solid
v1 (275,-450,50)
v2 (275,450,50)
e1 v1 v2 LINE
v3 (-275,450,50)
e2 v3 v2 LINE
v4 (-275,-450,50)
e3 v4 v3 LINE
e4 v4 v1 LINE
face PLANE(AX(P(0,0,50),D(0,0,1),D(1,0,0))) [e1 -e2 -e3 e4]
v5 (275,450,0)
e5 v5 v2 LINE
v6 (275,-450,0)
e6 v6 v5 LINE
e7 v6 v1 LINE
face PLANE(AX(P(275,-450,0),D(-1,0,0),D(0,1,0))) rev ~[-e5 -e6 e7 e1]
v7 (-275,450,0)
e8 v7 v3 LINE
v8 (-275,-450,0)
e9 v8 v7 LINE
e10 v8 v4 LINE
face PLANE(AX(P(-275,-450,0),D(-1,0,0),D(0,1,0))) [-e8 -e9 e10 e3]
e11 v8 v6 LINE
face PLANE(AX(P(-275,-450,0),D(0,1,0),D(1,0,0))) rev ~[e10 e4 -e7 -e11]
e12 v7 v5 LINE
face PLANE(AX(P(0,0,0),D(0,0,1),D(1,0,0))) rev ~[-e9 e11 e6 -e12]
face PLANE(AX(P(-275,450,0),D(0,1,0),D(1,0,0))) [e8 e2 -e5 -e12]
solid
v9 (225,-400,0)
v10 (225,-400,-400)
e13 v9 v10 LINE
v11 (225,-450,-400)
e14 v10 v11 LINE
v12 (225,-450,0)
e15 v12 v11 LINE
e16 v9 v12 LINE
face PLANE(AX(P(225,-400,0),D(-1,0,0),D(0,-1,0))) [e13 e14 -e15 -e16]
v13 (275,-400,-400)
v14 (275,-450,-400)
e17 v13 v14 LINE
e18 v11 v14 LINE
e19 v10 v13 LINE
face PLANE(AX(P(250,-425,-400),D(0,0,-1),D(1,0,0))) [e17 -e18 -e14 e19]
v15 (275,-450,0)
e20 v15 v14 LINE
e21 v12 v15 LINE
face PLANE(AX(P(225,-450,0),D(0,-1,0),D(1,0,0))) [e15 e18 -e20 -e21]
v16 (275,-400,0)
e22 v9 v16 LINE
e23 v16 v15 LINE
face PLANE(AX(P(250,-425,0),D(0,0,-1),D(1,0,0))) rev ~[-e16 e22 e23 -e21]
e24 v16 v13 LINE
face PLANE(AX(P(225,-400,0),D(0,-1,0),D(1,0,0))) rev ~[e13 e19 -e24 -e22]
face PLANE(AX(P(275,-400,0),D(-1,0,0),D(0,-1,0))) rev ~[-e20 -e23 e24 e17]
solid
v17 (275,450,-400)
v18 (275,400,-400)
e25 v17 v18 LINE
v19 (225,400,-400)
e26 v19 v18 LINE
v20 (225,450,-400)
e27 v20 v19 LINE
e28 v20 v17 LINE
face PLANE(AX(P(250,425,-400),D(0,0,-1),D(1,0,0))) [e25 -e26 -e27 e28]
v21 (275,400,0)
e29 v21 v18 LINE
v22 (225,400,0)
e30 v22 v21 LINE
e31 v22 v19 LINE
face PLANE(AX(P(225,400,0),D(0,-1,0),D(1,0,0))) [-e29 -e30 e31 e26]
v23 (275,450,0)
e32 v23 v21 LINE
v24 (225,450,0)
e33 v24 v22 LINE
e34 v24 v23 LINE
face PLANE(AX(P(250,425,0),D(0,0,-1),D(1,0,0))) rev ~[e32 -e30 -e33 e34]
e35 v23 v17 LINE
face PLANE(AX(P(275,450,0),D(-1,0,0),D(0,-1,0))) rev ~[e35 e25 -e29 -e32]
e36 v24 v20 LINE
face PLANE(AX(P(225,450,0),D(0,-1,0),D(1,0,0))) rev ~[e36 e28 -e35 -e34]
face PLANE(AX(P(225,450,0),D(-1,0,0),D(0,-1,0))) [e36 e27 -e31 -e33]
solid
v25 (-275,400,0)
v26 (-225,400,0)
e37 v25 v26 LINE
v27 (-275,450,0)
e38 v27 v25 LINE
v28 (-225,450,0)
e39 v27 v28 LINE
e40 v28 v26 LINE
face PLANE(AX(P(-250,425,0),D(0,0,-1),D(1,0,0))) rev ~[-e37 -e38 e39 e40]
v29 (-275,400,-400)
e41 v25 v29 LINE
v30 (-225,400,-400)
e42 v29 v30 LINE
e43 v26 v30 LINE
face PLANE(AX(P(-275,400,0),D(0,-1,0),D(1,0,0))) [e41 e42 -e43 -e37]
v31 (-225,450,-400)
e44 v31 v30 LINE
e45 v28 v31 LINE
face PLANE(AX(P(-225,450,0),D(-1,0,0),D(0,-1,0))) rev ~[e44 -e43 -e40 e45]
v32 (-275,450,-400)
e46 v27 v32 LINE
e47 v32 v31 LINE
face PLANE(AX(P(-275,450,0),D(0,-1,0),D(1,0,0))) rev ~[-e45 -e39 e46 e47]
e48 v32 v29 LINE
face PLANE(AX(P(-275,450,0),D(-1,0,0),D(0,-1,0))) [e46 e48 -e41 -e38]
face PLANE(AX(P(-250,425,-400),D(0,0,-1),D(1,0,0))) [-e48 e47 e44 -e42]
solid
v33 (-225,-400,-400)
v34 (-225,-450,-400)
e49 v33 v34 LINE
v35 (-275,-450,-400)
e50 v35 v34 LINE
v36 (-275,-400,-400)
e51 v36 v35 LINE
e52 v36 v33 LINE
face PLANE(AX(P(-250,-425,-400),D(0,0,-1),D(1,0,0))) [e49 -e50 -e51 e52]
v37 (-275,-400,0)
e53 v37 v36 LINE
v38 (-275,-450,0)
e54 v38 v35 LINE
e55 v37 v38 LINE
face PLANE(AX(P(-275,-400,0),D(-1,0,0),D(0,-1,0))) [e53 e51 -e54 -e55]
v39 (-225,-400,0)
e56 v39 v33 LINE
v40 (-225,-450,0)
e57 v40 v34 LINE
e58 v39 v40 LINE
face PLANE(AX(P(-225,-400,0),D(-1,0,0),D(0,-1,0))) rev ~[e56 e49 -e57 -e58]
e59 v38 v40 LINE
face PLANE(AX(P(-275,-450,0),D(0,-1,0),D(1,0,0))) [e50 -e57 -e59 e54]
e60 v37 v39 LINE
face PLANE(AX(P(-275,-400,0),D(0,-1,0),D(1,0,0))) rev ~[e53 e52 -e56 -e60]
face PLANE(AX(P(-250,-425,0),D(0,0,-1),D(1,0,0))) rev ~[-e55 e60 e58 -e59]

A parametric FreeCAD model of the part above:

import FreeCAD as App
import Part
import Sketcher
Q = App.Units.Quantity


def add_polygon(sketch, points):
    """Adds a closed chain of lines whose ends are joined by coincident constraints."""
    first, n = sketch.GeometryCount, len(points)
    for a, b in zip(points, points[1:] + points[:1]):
        sketch.addGeometry(Part.LineSegment(App.Vector(*a, 0), App.Vector(*b, 0)), False)
    for i in range(n):
        sketch.addConstraint(Sketcher.Constraint("Coincident", first + i, 2, first + (i + 1) % n, 1))

doc = App.newDocument("Part")
body = doc.addObject("PartDesign::Body", "Body")

# Sketch on XY plane
sketch1 = body.newObject("Sketcher::SketchObject", "Sketch")
sketch1.AttachmentSupport = (doc.getObject("XY_Plane"), [""])
sketch1.MapMode = "FlatFace"
add_polygon(sketch1, [(-275, 450), (-275, -450), (275, -450), (275, 450)])  # lines 0-3
sketch1.addConstraint(Sketcher.Constraint("Vertical", 0))
sketch1.addConstraint(Sketcher.Constraint("Horizontal", 1))
sketch1.addConstraint(Sketcher.Constraint("Vertical", 2))
sketch1.addConstraint(Sketcher.Constraint("Horizontal", 3))
sketch1.addConstraint(Sketcher.Constraint("Symmetric", 0, 2, 2, 2, -1, 1))
sketch1.addConstraint(Sketcher.Constraint("DistanceX", 1, 1, 1, 2, Q("550 mm")))
sketch1.addConstraint(Sketcher.Constraint("DistanceY", 0, 2, 0, 1, Q("900 mm")))
pad1 = body.newObject("PartDesign::Pad", "Pad")
pad1.Profile = sketch1
pad1.Length = 50
body2 = doc.addObject("PartDesign::Body", "Body001")
body2.AllowCompound = True

# Sketch on XY plane
sketch2 = body2.newObject("Sketcher::SketchObject", "Sketch001")
sketch2.AttachmentSupport = (doc.getObject("XY_Plane001"), [""])
sketch2.MapMode = "FlatFace"
add_polygon(sketch2, [(-275, -450), (-275, -400), (-225, -400), (-225, -450)])  # lines 0-3
add_polygon(sketch2, [(-275, 400), (-275, 450), (-225, 450), (-225, 400)])  # lines 4-7
add_polygon(sketch2, [(225, 400), (225, 450), (275, 450), (275, 400)])  # lines 8-11
add_polygon(sketch2, [(225, -450), (225, -400), (275, -400), (275, -450)])  # lines 12-15
sketch2.addConstraint(Sketcher.Constraint("Vertical", 0))
sketch2.addConstraint(Sketcher.Constraint("Horizontal", 1))
sketch2.addConstraint(Sketcher.Constraint("Vertical", 2))
sketch2.addConstraint(Sketcher.Constraint("Horizontal", 3))
sketch2.addConstraint(Sketcher.Constraint("Vertical", 4))
sketch2.addConstraint(Sketcher.Constraint("Horizontal", 5))
sketch2.addConstraint(Sketcher.Constraint("Vertical", 6))
sketch2.addConstraint(Sketcher.Constraint("Horizontal", 7))
sketch2.addConstraint(Sketcher.Constraint("Vertical", 8))
sketch2.addConstraint(Sketcher.Constraint("Horizontal", 9))
sketch2.addConstraint(Sketcher.Constraint("Vertical", 10))
sketch2.addConstraint(Sketcher.Constraint("Horizontal", 11))
sketch2.addConstraint(Sketcher.Constraint("Vertical", 12))
sketch2.addConstraint(Sketcher.Constraint("Horizontal", 13))
sketch2.addConstraint(Sketcher.Constraint("Vertical", 14))
sketch2.addConstraint(Sketcher.Constraint("Horizontal", 15))
sketch2.addConstraint(Sketcher.Constraint("Symmetric", 2, 2, 8, 2, -1, 1))
sketch2.addConstraint(Sketcher.Constraint("Symmetric", 0, 2, 10, 2, -1, 1))
sketch2.addConstraint(Sketcher.Constraint("Symmetric", 6, 2, 12, 2, -1, 1))
sketch2.addConstraint(Sketcher.Constraint("Symmetric", 4, 2, 14, 2, -1, 1))
sketch2.addConstraint(Sketcher.Constraint("Symmetric", 5, 2, 8, 2, -2))
sketch2.addConstraint(Sketcher.Constraint("Symmetric", 7, 2, 10, 2, -2))
sketch2.addConstraint(Sketcher.Constraint("Equal", 15, 0))
sketch2.addConstraint(Sketcher.Constraint("DistanceX", 1, 1, 1, 2, Q("50 mm")))
sketch2.addConstraint(Sketcher.Constraint("DistanceX", 0, 2, -1, 1, Q("275 mm")))
sketch2.addConstraint(Sketcher.Constraint("DistanceY", 0, 2, -1, 1, Q("400 mm")))
pad2 = body2.newObject("PartDesign::Pad", "Pad001")
pad2.Profile = sketch2
pad2.Length = 400
pad2.Reversed = True

doc.recompute()
